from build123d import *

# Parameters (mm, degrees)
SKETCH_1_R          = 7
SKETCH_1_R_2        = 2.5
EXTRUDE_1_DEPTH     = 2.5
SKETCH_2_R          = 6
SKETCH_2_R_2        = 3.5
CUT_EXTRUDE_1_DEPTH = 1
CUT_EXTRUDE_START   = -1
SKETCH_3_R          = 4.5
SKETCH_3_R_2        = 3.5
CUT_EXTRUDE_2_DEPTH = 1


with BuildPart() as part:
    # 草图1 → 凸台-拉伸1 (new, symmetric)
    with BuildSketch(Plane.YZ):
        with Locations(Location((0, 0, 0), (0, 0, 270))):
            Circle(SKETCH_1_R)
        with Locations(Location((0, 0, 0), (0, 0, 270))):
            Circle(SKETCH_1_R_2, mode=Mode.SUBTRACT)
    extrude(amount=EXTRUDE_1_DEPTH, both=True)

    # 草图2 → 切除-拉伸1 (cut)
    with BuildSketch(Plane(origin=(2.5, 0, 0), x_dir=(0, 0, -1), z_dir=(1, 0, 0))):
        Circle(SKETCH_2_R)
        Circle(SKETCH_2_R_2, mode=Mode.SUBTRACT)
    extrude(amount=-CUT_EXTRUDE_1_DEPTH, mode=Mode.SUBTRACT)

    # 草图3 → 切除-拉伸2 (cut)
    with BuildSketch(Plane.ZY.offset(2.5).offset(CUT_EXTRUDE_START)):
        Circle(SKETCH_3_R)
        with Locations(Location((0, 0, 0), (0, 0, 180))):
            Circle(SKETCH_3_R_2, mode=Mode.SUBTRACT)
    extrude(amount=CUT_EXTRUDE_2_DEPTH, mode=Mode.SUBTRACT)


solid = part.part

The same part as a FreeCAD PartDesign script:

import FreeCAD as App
import Part
import Sketcher

V = App.Vector

doc = App.newDocument("Part")
body = doc.addObject("PartDesign::Body", "Body")

sketch1 = body.newObject("Sketcher::SketchObject", "Sketch")
sketch1.AttachmentSupport = (doc.getObject("YZ_Plane"), [""])
sketch1.MapMode = "FlatFace"
sketch1.addGeometry([
    Part.Circle(V(0, 0, 0), V(0, 0, 1), 7),
    Part.Circle(V(0, 0, 0), V(0, 0, 1), 2.5),
], False)
sketch1.addConstraint([
    Sketcher.Constraint("Coincident", 0, 3, -1, 1),
    Sketcher.Constraint("Coincident", 1, 3, -1, 1),
    Sketcher.Constraint("Diameter", 0, 14.0),
    Sketcher.Constraint("Diameter", 1, 5.0),
])
pad1 = body.newObject("PartDesign::Pad", "Pad")
pad1.Profile = sketch1
pad1.Length = 5
pad1.Midplane = True

sketch2 = body.newObject("Sketcher::SketchObject", "Sketch001")
sketch2.AttachmentSupport = (doc.getObject("YZ_Plane"), [""])
sketch2.MapMode = "FlatFace"
sketch2.AttachmentOffset = App.Placement(V(0, 0, 2.5), App.Rotation())
sketch2.addGeometry([
    Part.Circle(V(0, 0, 0), V(0, 0, 1), 6),
    Part.Circle(V(0, 0, 0), V(0, 0, 1), 3.5),
], False)
sketch2.addConstraint([
    Sketcher.Constraint("Coincident", 0, 3, -1, 1),
    Sketcher.Constraint("Coincident", 1, 3, -1, 1),
    Sketcher.Constraint("Diameter", 0, 12.0),
    Sketcher.Constraint("Diameter", 1, 7.0),
])
pocket1 = body.newObject("PartDesign::Pocket", "Pocket")
pocket1.Profile = sketch2
pocket1.Length = 1

sketch3 = body.newObject("Sketcher::SketchObject", "Sketch002")
sketch3.AttachmentSupport = (doc.getObject("YZ_Plane"), [""])
sketch3.MapMode = "FlatFace"
sketch3.AttachmentOffset = App.Placement(V(0, 0, -1.5), App.Rotation())
sketch3.addGeometry([
    Part.Circle(V(0, 0, 0), V(0, 0, 1), 4.5),
    Part.Circle(V(0, 0, 0), V(0, 0, 1), 3.5),
], False)
sketch3.addConstraint([
    Sketcher.Constraint("Coincident", 0, 3, -1, 1),
    Sketcher.Constraint("Coincident", 1, 3, -1, 1),
    Sketcher.Constraint("Diameter", 0, 9.0),
    Sketcher.Constraint("Diameter", 1, 7.0),
])
pocket2 = body.newObject("PartDesign::Pocket", "Pocket001")
pocket2.Profile = sketch3
pocket2.Length = 1

doc.recompute()
